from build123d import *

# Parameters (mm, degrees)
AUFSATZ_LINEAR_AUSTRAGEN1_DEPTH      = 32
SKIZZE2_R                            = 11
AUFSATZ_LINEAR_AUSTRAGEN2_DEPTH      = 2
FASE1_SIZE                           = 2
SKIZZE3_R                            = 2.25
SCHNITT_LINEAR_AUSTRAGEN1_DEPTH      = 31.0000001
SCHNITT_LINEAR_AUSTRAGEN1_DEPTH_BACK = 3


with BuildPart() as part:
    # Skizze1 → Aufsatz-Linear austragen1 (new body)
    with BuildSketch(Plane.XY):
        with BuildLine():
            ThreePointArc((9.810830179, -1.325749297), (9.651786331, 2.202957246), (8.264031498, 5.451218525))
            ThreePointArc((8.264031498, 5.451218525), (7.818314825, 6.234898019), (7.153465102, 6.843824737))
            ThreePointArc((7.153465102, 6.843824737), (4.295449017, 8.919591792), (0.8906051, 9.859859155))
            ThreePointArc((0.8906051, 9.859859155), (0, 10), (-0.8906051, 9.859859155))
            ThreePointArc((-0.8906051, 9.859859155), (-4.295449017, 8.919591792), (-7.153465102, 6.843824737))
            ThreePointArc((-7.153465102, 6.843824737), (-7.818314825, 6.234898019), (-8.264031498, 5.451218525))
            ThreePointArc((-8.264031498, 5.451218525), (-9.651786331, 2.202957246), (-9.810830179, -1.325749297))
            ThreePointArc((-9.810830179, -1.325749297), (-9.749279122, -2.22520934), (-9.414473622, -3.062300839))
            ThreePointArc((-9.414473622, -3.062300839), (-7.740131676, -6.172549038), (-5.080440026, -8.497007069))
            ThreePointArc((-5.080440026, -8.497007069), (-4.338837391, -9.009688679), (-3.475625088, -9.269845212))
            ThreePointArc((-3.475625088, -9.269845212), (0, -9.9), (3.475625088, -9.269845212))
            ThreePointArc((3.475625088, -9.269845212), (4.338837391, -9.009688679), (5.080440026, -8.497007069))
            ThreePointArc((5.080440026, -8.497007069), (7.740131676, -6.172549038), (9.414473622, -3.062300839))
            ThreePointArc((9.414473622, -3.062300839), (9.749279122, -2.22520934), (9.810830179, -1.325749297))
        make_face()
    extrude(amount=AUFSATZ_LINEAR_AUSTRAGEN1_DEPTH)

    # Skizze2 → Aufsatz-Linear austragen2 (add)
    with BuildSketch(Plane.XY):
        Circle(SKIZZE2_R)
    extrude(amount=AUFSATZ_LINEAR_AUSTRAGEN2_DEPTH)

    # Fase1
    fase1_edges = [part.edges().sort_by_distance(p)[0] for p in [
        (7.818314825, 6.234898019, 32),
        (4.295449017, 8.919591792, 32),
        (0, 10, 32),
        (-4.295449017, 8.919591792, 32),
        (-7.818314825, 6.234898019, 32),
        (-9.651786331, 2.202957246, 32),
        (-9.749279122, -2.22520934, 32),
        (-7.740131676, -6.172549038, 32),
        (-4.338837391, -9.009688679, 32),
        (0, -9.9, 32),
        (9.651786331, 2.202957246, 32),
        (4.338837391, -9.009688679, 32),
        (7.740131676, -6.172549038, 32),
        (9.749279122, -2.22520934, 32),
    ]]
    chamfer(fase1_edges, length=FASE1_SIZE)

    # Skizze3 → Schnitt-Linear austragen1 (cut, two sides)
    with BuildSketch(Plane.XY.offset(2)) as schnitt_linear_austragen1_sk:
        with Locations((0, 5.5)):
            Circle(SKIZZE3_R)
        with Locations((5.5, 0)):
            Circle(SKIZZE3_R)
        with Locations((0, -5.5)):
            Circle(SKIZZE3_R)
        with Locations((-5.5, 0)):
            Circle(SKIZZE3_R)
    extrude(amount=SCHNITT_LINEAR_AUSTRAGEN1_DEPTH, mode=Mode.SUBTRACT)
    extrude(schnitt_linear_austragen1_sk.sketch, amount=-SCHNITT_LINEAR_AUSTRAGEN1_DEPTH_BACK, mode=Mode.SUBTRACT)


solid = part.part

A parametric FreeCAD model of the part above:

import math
import FreeCAD as App
import Part
import Sketcher
from FreeCAD import Vector
Q = App.Units.Quantity


def edges_at(feature, points):
    """Names of the edges that pass closest to the given points."""
    edges = feature.Shape.Edges
    near = lambda p: min(range(len(edges)), key=lambda i: edges[i].distToShape(Part.Vertex(*p))[0])
    return sorted({f"Edge{near(p) + 1}" for p in points})

doc = App.newDocument("Part")
body = doc.addObject("PartDesign::Body", "Body")

# Sketch on XY plane
sketch1 = doc.addObject("Sketcher::SketchObject", "Sketch")
body.addObject(sketch1)
sketch1.AttachmentSupport = (doc.XY_Plane, [""])
sketch1.MapMode = "FlatFace"
sketch1.addGeometry([
    Part.ArcOfCircle(Part.Circle(Vector(0, 0, 0), Vector(0, 0, 1), 9.9), math.radians(-8), math.radians(33)),  # 0
    Part.ArcOfCircle(Part.Circle(Vector(5.6, 4.4, 0), Vector(0, 0, 1), 2.9), math.radians(21), math.radians(56)),  # 1
    Part.ArcOfCircle(Part.Circle(Vector(0, 0, 0), Vector(0, 0, 1), 9.9), math.radians(44), math.radians(85)),  # 2
    Part.ArcOfCircle(Part.Circle(Vector(0, 7.1, 0), Vector(0, 0, 1), 2.9), math.radians(72), math.radians(108)),  # 3
    Part.ArcOfCircle(Part.Circle(Vector(0, 0, 0), Vector(0, 0, 1), 9.9), math.radians(95), math.radians(136)),  # 4
    Part.ArcOfCircle(Part.Circle(Vector(-5.6, 4.4, 0), Vector(0, 0, 1), 2.9), math.radians(124), math.radians(159)),  # 5
    Part.ArcOfCircle(Part.Circle(Vector(0, 0, 0), Vector(0, 0, 1), 9.9), math.radians(147), math.radians(188)),  # 6
    Part.ArcOfCircle(Part.Circle(Vector(-6.9, -1.6, 0), Vector(0, 0, 1), 2.9), math.radians(175), math.radians(211)),  # 7
    Part.ArcOfCircle(Part.Circle(Vector(0, 0, 0), Vector(0, 0, 1), 9.9), math.radians(-162), math.radians(-121)),  # 8
    Part.ArcOfCircle(Part.Circle(Vector(-3.1, -6.4, 0), Vector(0, 0, 1), 2.9), math.radians(-134), math.radians(-98)),  # 9
    Part.ArcOfCircle(Part.Circle(Vector(0, 0, 0), Vector(0, 0, 1), 9.9), math.radians(-111), math.radians(-69)),  # 10
    Part.ArcOfCircle(Part.Circle(Vector(3.1, -6.4, 0), Vector(0, 0, 1), 2.9), math.radians(-82), math.radians(-46)),  # 11
    Part.ArcOfCircle(Part.Circle(Vector(0, 0, 0), Vector(0, 0, 1), 9.9), math.radians(-59), math.radians(-18)),  # 12
    Part.ArcOfCircle(Part.Circle(Vector(6.9, -1.6, 0), Vector(0, 0, 1), 2.9), math.radians(-31), math.radians(5)),  # 13
], False)
sketch1.addConstraint([
    Sketcher.Constraint("Coincident", 0, 2, 1, 1),
    Sketcher.Constraint("Coincident", 1, 2, 2, 1),
    Sketcher.Constraint("Coincident", 2, 2, 3, 1),
    Sketcher.Constraint("Coincident", 3, 2, 4, 1),
    Sketcher.Constraint("Coincident", 4, 2, 5, 1),
    Sketcher.Constraint("Coincident", 5, 2, 6, 1),
    Sketcher.Constraint("Coincident", 6, 2, 7, 1),
    Sketcher.Constraint("Coincident", 7, 2, 8, 1),
    Sketcher.Constraint("Coincident", 8, 2, 9, 1),
    Sketcher.Constraint("Coincident", 9, 2, 10, 1),
    Sketcher.Constraint("Coincident", 10, 2, 11, 1),
    Sketcher.Constraint("Coincident", 11, 2, 12, 1),
    Sketcher.Constraint("Coincident", 12, 2, 13, 1),
    Sketcher.Constraint("Coincident", 13, 2, 0, 1),
    Sketcher.Constraint("Coincident", 0, 3, -1, 1),
    Sketcher.Constraint("Coincident", 2, 3, -1, 1),
    Sketcher.Constraint("Coincident", 4, 3, -1, 1),
    Sketcher.Constraint("Coincident", 6, 3, -1, 1),
    Sketcher.Constraint("Coincident", 8, 3, -1, 1),
    Sketcher.Constraint("Coincident", 10, 3, -1, 1),
    Sketcher.Constraint("Coincident", 12, 3, -1, 1),
    Sketcher.Constraint("Equal", 0, 2),
    Sketcher.Constraint("Equal", 1, 3),
    Sketcher.Constraint("Equal", 2, 4),
    Sketcher.Constraint("Equal", 3, 5),
    Sketcher.Constraint("Equal", 4, 6),
    Sketcher.Constraint("Equal", 5, 7),
    Sketcher.Constraint("Equal", 6, 8),
    Sketcher.Constraint("Equal", 7, 9),
    Sketcher.Constraint("Equal", 8, 10),
    Sketcher.Constraint("Equal", 9, 11),
    Sketcher.Constraint("Equal", 10, 12),
    Sketcher.Constraint("Equal", 11, 13),
    Sketcher.Constraint("Symmetric", 1, 3, 5, 3, -2),
    Sketcher.Constraint("Symmetric", 9, 3, 11, 3, -2),
    Sketcher.Constraint("Symmetric", 7, 3, 13, 3, -2),
    Sketcher.Constraint("PointOnObject", 3, 3, -2),
    Sketcher.Constraint("Radius", 0, Q("9.9 mm")),
    Sketcher.Constraint("Radius", 1, Q("2.9 mm")),
    Sketcher.Constraint("DistanceY", -1, 1, 3, 3, Q("7.1 mm")),
    Sketcher.Constraint("DistanceY", 7, 3, -1, 1, Q("1.579899 mm")),
    Sketcher.Constraint("DistanceY", 7, 2, -1, 1, Q("3.062301 mm")),
    Sketcher.Constraint("DistanceX", 2, 2, 1, 3, Q("4.660398 mm")),
    Sketcher.Constraint("DistanceX", 6, 2, 5, 2, Q("1.546799 mm")),
    Sketcher.Constraint("DistanceX", 7, 2, 9, 3, Q("6.333899 mm")),
    Sketcher.Constraint("DistanceX", 9, 2, 11, 3, Q("6.5562 mm")),
])
pad1 = doc.addObject("PartDesign::Pad", "Pad")
body.addObject(pad1)
pad1.Profile = sketch1
pad1.Length = 32

# Sketch on XY plane
sketch2 = doc.addObject("Sketcher::SketchObject", "Sketch001")
body.addObject(sketch2)
sketch2.AttachmentSupport = (doc.XY_Plane, [""])
sketch2.MapMode = "FlatFace"
sketch2.addGeometry(Part.Circle(Vector(0, 0, 0), Vector(0, 0, 1), 11), False)
sketch2.addConstraint([
    Sketcher.Constraint("Coincident", 0, 3, -1, 1),
    Sketcher.Constraint("Diameter", 0, Q("22 mm")),
])
pad2 = doc.addObject("PartDesign::Pad", "Pad001")
body.addObject(pad2)
pad2.Profile = sketch2
pad2.Length = 2
doc.recompute()

chamfer = doc.addObject("PartDesign::Chamfer", "Chamfer")
body.addObject(chamfer)
chamfer.Base = (pad2, edges_at(pad2, [
    (7.818, 6.235, 32),
    (4.295, 8.92, 32),
    (0, 10, 32),
    (-4.295, 8.92, 32),
    (-7.818, 6.235, 32),
    (-9.652, 2.203, 32),
    (-9.749, -2.225, 32),
    (-7.74, -6.173, 32),
    (-4.339, -9.01, 32),
    (0, -9.9, 32),
    (9.652, 2.203, 32),
    (4.339, -9.01, 32),
    (7.74, -6.173, 32),
    (9.749, -2.225, 32),
]))
chamfer.Size = 2

# Sketch on XY plane
sketch3 = doc.addObject("Sketcher::SketchObject", "Sketch002")
body.addObject(sketch3)
sketch3.AttachmentSupport = (doc.XY_Plane, [""])
sketch3.MapMode = "FlatFace"
sketch3.AttachmentOffset = App.Placement(Vector(0, 0, 2), App.Rotation())
sketch3.addGeometry([
    Part.Circle(Vector(0, 5.5, 0), Vector(0, 0, 1), 2.2),
    Part.Circle(Vector(5.5, 0, 0), Vector(0, 0, 1), 2.2),
    Part.Circle(Vector(0, -5.5, 0), Vector(0, 0, 1), 2.2),
    Part.Circle(Vector(-5.5, 0, 0), Vector(0, 0, 1), 2.2),
], False)
sketch3.addConstraint([
    Sketcher.Constraint("Equal", 0, 1),
    Sketcher.Constraint("Equal", 1, 2),
    Sketcher.Constraint("Equal", 2, 3),
    Sketcher.Constraint("Symmetric", 0, 3, 2, 3, -1, 1),
    Sketcher.Constraint("Symmetric", 1, 3, 3, 3, -1, 1),
    Sketcher.Constraint("PointOnObject", 0, 3, -2),
    Sketcher.Constraint("PointOnObject", 1, 3, -1),
    Sketcher.Constraint("Diameter", 0, Q("4.5 mm")),
    Sketcher.Constraint("DistanceY", 2, 3, 0, 3, Q("11 mm")),
    Sketcher.Constraint("DistanceX", 3, 3, 1, 3, Q("11 mm")),
])
pocket1 = doc.addObject("PartDesign::Pocket", "Pocket")
body.addObject(pocket1)
pocket1.Profile = sketch3
pocket1.Type = "ThroughAll"
pocket1.Midplane = True

doc.recompute()
